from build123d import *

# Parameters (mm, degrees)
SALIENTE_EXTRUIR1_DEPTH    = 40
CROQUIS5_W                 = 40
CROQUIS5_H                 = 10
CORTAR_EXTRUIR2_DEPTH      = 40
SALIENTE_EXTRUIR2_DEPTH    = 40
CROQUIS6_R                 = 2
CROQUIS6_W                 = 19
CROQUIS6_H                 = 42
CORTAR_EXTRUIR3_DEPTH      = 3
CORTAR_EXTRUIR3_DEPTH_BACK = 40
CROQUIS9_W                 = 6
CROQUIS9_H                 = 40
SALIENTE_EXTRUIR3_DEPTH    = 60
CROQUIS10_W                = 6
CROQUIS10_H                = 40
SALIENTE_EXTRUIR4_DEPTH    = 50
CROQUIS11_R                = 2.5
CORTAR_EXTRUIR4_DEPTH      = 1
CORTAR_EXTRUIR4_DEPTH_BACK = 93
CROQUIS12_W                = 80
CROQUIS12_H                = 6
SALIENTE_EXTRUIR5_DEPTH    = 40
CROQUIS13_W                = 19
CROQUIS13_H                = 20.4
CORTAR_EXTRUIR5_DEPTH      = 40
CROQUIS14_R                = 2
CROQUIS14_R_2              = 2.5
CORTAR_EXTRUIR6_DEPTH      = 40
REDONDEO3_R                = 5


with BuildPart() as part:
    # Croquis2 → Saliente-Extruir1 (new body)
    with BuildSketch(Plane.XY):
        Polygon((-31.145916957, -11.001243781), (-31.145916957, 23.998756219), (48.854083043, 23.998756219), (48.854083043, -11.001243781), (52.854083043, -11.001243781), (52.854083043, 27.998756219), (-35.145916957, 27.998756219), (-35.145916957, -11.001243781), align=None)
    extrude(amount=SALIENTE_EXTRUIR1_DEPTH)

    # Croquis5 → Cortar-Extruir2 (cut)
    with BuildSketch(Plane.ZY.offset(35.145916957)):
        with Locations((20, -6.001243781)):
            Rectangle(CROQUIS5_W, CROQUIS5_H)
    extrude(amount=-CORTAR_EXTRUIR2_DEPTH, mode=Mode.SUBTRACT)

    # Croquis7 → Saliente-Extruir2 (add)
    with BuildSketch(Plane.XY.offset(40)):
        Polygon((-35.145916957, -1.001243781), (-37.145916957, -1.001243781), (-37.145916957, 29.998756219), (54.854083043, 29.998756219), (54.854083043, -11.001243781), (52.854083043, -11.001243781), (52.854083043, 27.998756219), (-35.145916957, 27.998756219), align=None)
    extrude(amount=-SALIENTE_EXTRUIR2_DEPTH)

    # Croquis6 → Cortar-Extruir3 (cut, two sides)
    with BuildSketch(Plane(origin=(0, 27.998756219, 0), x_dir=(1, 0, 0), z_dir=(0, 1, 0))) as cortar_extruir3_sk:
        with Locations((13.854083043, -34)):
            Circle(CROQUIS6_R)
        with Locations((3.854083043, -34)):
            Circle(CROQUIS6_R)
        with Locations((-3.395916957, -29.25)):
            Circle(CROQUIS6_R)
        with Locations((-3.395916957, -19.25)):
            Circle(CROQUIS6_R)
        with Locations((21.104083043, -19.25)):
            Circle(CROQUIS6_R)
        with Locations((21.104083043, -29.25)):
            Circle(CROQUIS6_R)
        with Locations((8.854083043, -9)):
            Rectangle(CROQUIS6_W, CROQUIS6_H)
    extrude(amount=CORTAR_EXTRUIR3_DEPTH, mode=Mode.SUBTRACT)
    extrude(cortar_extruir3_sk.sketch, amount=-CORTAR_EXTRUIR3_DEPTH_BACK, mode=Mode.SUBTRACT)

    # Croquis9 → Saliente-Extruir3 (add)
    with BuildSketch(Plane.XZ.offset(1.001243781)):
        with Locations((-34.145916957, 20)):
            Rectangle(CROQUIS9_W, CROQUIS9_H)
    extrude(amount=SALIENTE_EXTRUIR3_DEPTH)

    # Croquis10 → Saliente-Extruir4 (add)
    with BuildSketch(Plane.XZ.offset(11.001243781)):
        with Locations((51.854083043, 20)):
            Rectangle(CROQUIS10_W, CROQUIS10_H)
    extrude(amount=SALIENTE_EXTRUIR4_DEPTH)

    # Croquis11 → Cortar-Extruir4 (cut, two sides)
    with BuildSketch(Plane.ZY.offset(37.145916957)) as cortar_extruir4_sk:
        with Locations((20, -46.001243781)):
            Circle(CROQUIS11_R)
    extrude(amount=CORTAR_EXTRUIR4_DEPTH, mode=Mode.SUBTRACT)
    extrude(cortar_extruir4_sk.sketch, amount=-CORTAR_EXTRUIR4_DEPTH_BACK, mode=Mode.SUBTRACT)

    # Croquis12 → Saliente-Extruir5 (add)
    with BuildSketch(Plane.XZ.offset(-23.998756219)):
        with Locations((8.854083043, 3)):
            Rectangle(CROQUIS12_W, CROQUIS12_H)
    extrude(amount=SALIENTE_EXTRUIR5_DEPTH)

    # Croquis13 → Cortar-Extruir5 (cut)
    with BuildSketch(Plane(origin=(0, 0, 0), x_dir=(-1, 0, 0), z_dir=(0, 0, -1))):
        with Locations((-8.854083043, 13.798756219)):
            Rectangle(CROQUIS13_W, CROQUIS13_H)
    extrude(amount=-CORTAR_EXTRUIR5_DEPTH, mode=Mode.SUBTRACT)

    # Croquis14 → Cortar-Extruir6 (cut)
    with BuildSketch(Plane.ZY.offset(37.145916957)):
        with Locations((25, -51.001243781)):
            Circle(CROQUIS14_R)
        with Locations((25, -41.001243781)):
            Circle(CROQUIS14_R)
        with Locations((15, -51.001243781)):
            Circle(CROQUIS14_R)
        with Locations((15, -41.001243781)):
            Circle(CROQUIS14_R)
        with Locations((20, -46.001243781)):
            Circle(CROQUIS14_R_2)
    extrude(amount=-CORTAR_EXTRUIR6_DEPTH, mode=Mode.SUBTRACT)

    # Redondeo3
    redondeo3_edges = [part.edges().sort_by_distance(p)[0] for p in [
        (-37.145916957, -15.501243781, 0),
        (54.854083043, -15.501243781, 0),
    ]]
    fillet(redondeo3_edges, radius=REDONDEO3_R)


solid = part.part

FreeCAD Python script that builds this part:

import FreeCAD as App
import Part
import Sketcher

V = App.Vector


def edges_at(feature, points):
    """Names of the edges that pass closest to the given points."""
    edges = feature.Shape.Edges
    near = lambda p: min(range(len(edges)), key=lambda i: edges[i].distToShape(Part.Vertex(*p))[0])
    return sorted({f"Edge{near(p) + 1}" for p in points})

doc = App.newDocument("Part")
body = doc.addObject("PartDesign::Body", "Body")

# Sketch on XY plane
sketch1 = body.newObject("Sketcher::SketchObject", "Sketch")
sketch1.AttachmentSupport = (doc.getObject("XY_Plane"), [""])
sketch1.MapMode = "FlatFace"
sketch1.addGeometry(Part.LineSegment(V(-31.1, -11, 0), V(-31.1, 24, 0)), False)
sketch1.addGeometry(Part.LineSegment(V(-31.1, 24, 0), V(48.9, 24, 0)), False)
sketch1.addGeometry(Part.LineSegment(V(48.9, 24, 0), V(48.9, -11, 0)), False)
sketch1.addGeometry(Part.LineSegment(V(48.9, -11, 0), V(52.9, -11, 0)), False)
sketch1.addGeometry(Part.LineSegment(V(52.9, -11, 0), V(52.9, 28, 0)), False)
sketch1.addGeometry(Part.LineSegment(V(52.9, 28, 0), V(-35.1, 28, 0)), False)
sketch1.addGeometry(Part.LineSegment(V(-35.1, 28, 0), V(-35.1, -11, 0)), False)
sketch1.addGeometry(Part.LineSegment(V(-35.1, -11, 0), V(-31.1, -11, 0)), False)
sketch1.addConstraint(Sketcher.Constraint("Coincident", 0, 2, 1, 1))
sketch1.addConstraint(Sketcher.Constraint("Coincident", 1, 2, 2, 1))
sketch1.addConstraint(Sketcher.Constraint("Coincident", 2, 2, 3, 1))
sketch1.addConstraint(Sketcher.Constraint("Coincident", 3, 2, 4, 1))
sketch1.addConstraint(Sketcher.Constraint("Coincident", 4, 2, 5, 1))
sketch1.addConstraint(Sketcher.Constraint("Coincident", 5, 2, 6, 1))
sketch1.addConstraint(Sketcher.Constraint("Coincident", 6, 2, 7, 1))
sketch1.addConstraint(Sketcher.Constraint("Coincident", 7, 2, 0, 1))
sketch1.addConstraint(Sketcher.Constraint("Vertical", 0))
sketch1.addConstraint(Sketcher.Constraint("Horizontal", 1))
sketch1.addConstraint(Sketcher.Constraint("Vertical", 2))
sketch1.addConstraint(Sketcher.Constraint("Horizontal", 3))
sketch1.addConstraint(Sketcher.Constraint("Vertical", 4))
sketch1.addConstraint(Sketcher.Constraint("Horizontal", 5))
sketch1.addConstraint(Sketcher.Constraint("Vertical", 6))
sketch1.addConstraint(Sketcher.Constraint("Horizontal", 7))
sketch1.addConstraint(Sketcher.Constraint("Horizontal", 3, 2, 6, 2))
sketch1.addConstraint(Sketcher.Constraint("Equal", 3, 7))
sketch1.addConstraint(Sketcher.Constraint("DistanceX", 1, 1, 1, 2, 80.0))
sketch1.addConstraint(Sketcher.Constraint("DistanceX", 3, 1, 3, 2, 4.0))
sketch1.addConstraint(Sketcher.Constraint("DistanceY", 0, 1, 0, 2, 35.0))
sketch1.addConstraint(Sketcher.Constraint("DistanceY", 4, 1, 4, 2, 39.0))
sketch1.addConstraint(Sketcher.Constraint("DistanceX", 0, 2, -1, 1, 31.145917))
sketch1.addConstraint(Sketcher.Constraint("DistanceY", -1, 1, 0, 2, 23.998756))
pad1 = body.newObject("PartDesign::Pad", "Pad")
pad1.Profile = sketch1
pad1.Length = 40

# Sketch on YZ plane
sketch2 = body.newObject("Sketcher::SketchObject", "Sketch001")
sketch2.AttachmentSupport = (doc.getObject("YZ_Plane"), [""])
sketch2.MapMode = "FlatFace"
sketch2.AttachmentOffset = App.Placement(V(0, 0, -35.145917), App.Rotation())
sketch2.addGeometry(Part.LineSegment(V(-1, 0, 0), V(-11, 0, 0)), False)
sketch2.addGeometry(Part.LineSegment(V(-11, 0, 0), V(-11, 40, 0)), False)
sketch2.addGeometry(Part.LineSegment(V(-11, 40, 0), V(-1, 40, 0)), False)
sketch2.addGeometry(Part.LineSegment(V(-1, 40, 0), V(-1, 0, 0)), False)
sketch2.addConstraint(Sketcher.Constraint("Coincident", 0, 2, 1, 1))
sketch2.addConstraint(Sketcher.Constraint("Coincident", 1, 2, 2, 1))
sketch2.addConstraint(Sketcher.Constraint("Coincident", 2, 2, 3, 1))
sketch2.addConstraint(Sketcher.Constraint("Coincident", 3, 2, 0, 1))
sketch2.addConstraint(Sketcher.Constraint("Horizontal", 0))
sketch2.addConstraint(Sketcher.Constraint("Vertical", 1))
sketch2.addConstraint(Sketcher.Constraint("Horizontal", 2))
sketch2.addConstraint(Sketcher.Constraint("Vertical", 3))
sketch2.addConstraint(Sketcher.Constraint("PointOnObject", 0, 2, -1))
sketch2.addConstraint(Sketcher.Constraint("DistanceX", 0, 2, 0, 1, 10.0))
sketch2.addConstraint(Sketcher.Constraint("DistanceY", 1, 1, 1, 2, 40.0))
sketch2.addConstraint(Sketcher.Constraint("DistanceX", 0, 2, -1, 1, 11.001244))
pocket1 = body.newObject("PartDesign::Pocket", "Pocket")
pocket1.Profile = sketch2
pocket1.Length = 40
pocket1.Reversed = True

# Sketch on XY plane
sketch3 = body.newObject("Sketcher::SketchObject", "Sketch002")
sketch3.AttachmentSupport = (doc.getObject("XY_Plane"), [""])
sketch3.MapMode = "FlatFace"
sketch3.AttachmentOffset = App.Placement(V(0, 0, 40), App.Rotation())
sketch3.addGeometry(Part.LineSegment(V(-37.1, -1, 0), V(-35.1, -1, 0)), False)
sketch3.addGeometry(Part.LineSegment(V(-35.1, -1, 0), V(-35.1, 28, 0)), False)
sketch3.addGeometry(Part.LineSegment(V(-35.1, 28, 0), V(52.9, 28, 0)), False)
sketch3.addGeometry(Part.LineSegment(V(52.9, 28, 0), V(52.9, -11, 0)), False)
sketch3.addGeometry(Part.LineSegment(V(52.9, -11, 0), V(54.9, -11, 0)), False)
sketch3.addGeometry(Part.LineSegment(V(54.9, -11, 0), V(54.9, 30, 0)), False)
sketch3.addGeometry(Part.LineSegment(V(54.9, 30, 0), V(-37.1, 30, 0)), False)
sketch3.addGeometry(Part.LineSegment(V(-37.1, 30, 0), V(-37.1, -1, 0)), False)
sketch3.addConstraint(Sketcher.Constraint("Coincident", 0, 2, 1, 1))
sketch3.addConstraint(Sketcher.Constraint("Coincident", 1, 2, 2, 1))
sketch3.addConstraint(Sketcher.Constraint("Coincident", 2, 2, 3, 1))
sketch3.addConstraint(Sketcher.Constraint("Coincident", 3, 2, 4, 1))
sketch3.addConstraint(Sketcher.Constraint("Coincident", 4, 2, 5, 1))
sketch3.addConstraint(Sketcher.Constraint("Coincident", 5, 2, 6, 1))
sketch3.addConstraint(Sketcher.Constraint("Coincident", 6, 2, 7, 1))
sketch3.addConstraint(Sketcher.Constraint("Coincident", 7, 2, 0, 1))
sketch3.addConstraint(Sketcher.Constraint("Horizontal", 0))
sketch3.addConstraint(Sketcher.Constraint("Vertical", 1))
sketch3.addConstraint(Sketcher.Constraint("Horizontal", 2))
sketch3.addConstraint(Sketcher.Constraint("Vertical", 3))
sketch3.addConstraint(Sketcher.Constraint("Horizontal", 4))
sketch3.addConstraint(Sketcher.Constraint("Vertical", 5))
sketch3.addConstraint(Sketcher.Constraint("Horizontal", 6))
sketch3.addConstraint(Sketcher.Constraint("Vertical", 7))
sketch3.addConstraint(Sketcher.Constraint("Equal", 0, 4))
sketch3.addConstraint(Sketcher.Constraint("DistanceX", 0, 1, 0, 2, 2.0))
sketch3.addConstraint(Sketcher.Constraint("DistanceX", 2, 1, 2, 2, 88.0))
sketch3.addConstraint(Sketcher.Constraint("DistanceY", 1, 1, 1, 2, 29.0))
sketch3.addConstraint(Sketcher.Constraint("DistanceY", 3, 2, 3, 1, 39.0))
sketch3.addConstraint(Sketcher.Constraint("DistanceY", 5, 1, 5, 2, 41.0))
sketch3.addConstraint(Sketcher.Constraint("DistanceX", 0, 2, -1, 1, 35.145917))
sketch3.addConstraint(Sketcher.Constraint("DistanceY", 0, 2, -1, 1, 1.001244))
pad2 = body.newObject("PartDesign::Pad", "Pad001")
pad2.Profile = sketch3
pad2.Length = 40
pad2.Reversed = True

# Sketch on XZ plane
sketch4 = body.newObject("Sketcher::SketchObject", "Sketch003")
sketch4.AttachmentSupport = (doc.getObject("XZ_Plane"), [""])
sketch4.MapMode = "FlatFace"
sketch4.AttachmentOffset = App.Placement(V(0, 0, -27.998756), App.Rotation())
sketch4.addGeometry(Part.Circle(V(13.9, 34, 0), V(0, 0, 1), 2), False)
sketch4.addGeometry(Part.Circle(V(3.9, 34, 0), V(0, 0, 1), 2), False)
sketch4.addGeometry(Part.Circle(V(-3.4, 29.2, 0), V(0, 0, 1), 2), False)
sketch4.addGeometry(Part.Circle(V(-3.4, 19.2, 0), V(0, 0, 1), 2), False)
sketch4.addGeometry(Part.Circle(V(21.1, 19.2, 0), V(0, 0, 1), 2), False)
sketch4.addGeometry(Part.Circle(V(21.1, 29.2, 0), V(0, 0, 1), 2), False)
sketch4.addGeometry(Part.LineSegment(V(-0.6, -12, 0), V(-0.6, 30, 0)), False)
sketch4.addGeometry(Part.LineSegment(V(-0.6, 30, 0), V(18.4, 30, 0)), False)
sketch4.addGeometry(Part.LineSegment(V(18.4, 30, 0), V(18.4, -12, 0)), False)
sketch4.addGeometry(Part.LineSegment(V(18.4, -12, 0), V(-0.6, -12, 0)), False)
sketch4.addConstraint(Sketcher.Constraint("Coincident", 6, 2, 7, 1))
sketch4.addConstraint(Sketcher.Constraint("Coincident", 7, 2, 8, 1))
sketch4.addConstraint(Sketcher.Constraint("Coincident", 8, 2, 9, 1))
sketch4.addConstraint(Sketcher.Constraint("Coincident", 9, 2, 6, 1))
sketch4.addConstraint(Sketcher.Constraint("Vertical", 6))
sketch4.addConstraint(Sketcher.Constraint("Horizontal", 7))
sketch4.addConstraint(Sketcher.Constraint("Vertical", 8))
sketch4.addConstraint(Sketcher.Constraint("Horizontal", 9))
sketch4.addConstraint(Sketcher.Constraint("Equal", 0, 1))
sketch4.addConstraint(Sketcher.Constraint("Equal", 1, 2))
sketch4.addConstraint(Sketcher.Constraint("Equal", 2, 3))
sketch4.addConstraint(Sketcher.Constraint("Equal", 3, 4))
sketch4.addConstraint(Sketcher.Constraint("Equal", 4, 5))
sketch4.addConstraint(Sketcher.Constraint("Horizontal", 0, 3, 1, 3))
sketch4.addConstraint(Sketcher.Constraint("Horizontal", 3, 3, 4, 3))
sketch4.addConstraint(Sketcher.Constraint("Horizontal", 2, 3, 5, 3))
sketch4.addConstraint(Sketcher.Constraint("Vertical", 2, 3, 3, 3))
sketch4.addConstraint(Sketcher.Constraint("Vertical", 4, 3, 5, 3))
sketch4.addConstraint(Sketcher.Constraint("Diameter", 0, 4.0))
sketch4.addConstraint(Sketcher.Constraint("DistanceX", 7, 1, 7, 2, 19.0))
sketch4.addConstraint(Sketcher.Constraint("DistanceY", 6, 1, 6, 2, 42.0))
sketch4.addConstraint(Sketcher.Constraint("DistanceY", -1, 1, 0, 3, 34.0))
sketch4.addConstraint(Sketcher.Constraint("DistanceY", -1, 1, 6, 2, 30.0))
sketch4.addConstraint(Sketcher.Constraint("DistanceX", 1, 3, 0, 3, 10.0))
sketch4.addConstraint(Sketcher.Constraint("DistanceY", 3, 3, 2, 3, 10.0))
sketch4.addConstraint(Sketcher.Constraint("DistanceX", 3, 3, 4, 3, 24.5))
sketch4.addConstraint(Sketcher.Constraint("DistanceX", 6, 2, 1, 3, 4.5))
sketch4.addConstraint(Sketcher.Constraint("DistanceY", -1, 1, 2, 3, 29.25))
sketch4.addConstraint(Sketcher.Constraint("DistanceX", 2, 3, 1, 3, 7.25))
sketch4.addConstraint(Sketcher.Constraint("DistanceX", -1, 1, 0, 3, 13.854083))
pocket2 = body.newObject("PartDesign::Pocket", "Pocket001")
pocket2.Profile = sketch4
pocket2.Type = "ThroughAll"
pocket2.Midplane = True

# Sketch on XZ plane
sketch5 = body.newObject("Sketcher::SketchObject", "Sketch004")
sketch5.AttachmentSupport = (doc.getObject("XZ_Plane"), [""])
sketch5.MapMode = "FlatFace"
sketch5.AttachmentOffset = App.Placement(V(0, 0, 1.001244), App.Rotation())
sketch5.addGeometry(Part.LineSegment(V(-37, 40, 0), V(-37, 0, 0)), False)
sketch5.addGeometry(Part.LineSegment(V(-37, 0, 0), V(-31, 0, 0)), False)
sketch5.addGeometry(Part.LineSegment(V(-31, 0, 0), V(-31, 40, 0)), False)
sketch5.addGeometry(Part.LineSegment(V(-31, 40, 0), V(-37, 40, 0)), False)
sketch5.addConstraint(Sketcher.Constraint("Coincident", 0, 2, 1, 1))
sketch5.addConstraint(Sketcher.Constraint("Coincident", 1, 2, 2, 1))
sketch5.addConstraint(Sketcher.Constraint("Coincident", 2, 2, 3, 1))
sketch5.addConstraint(Sketcher.Constraint("Coincident", 3, 2, 0, 1))
sketch5.addConstraint(Sketcher.Constraint("Vertical", 0))
sketch5.addConstraint(Sketcher.Constraint("Horizontal", 1))
sketch5.addConstraint(Sketcher.Constraint("Vertical", 2))
sketch5.addConstraint(Sketcher.Constraint("Horizontal", 3))
sketch5.addConstraint(Sketcher.Constraint("PointOnObject", 0, 2, -1))
sketch5.addConstraint(Sketcher.Constraint("DistanceX", 1, 1, 1, 2, 6.0))
sketch5.addConstraint(Sketcher.Constraint("DistanceY", 0, 2, 0, 1, 40.0))
sketch5.addConstraint(Sketcher.Constraint("DistanceX", 0, 2, -1, 1, 37.145917))
pad3 = body.newObject("PartDesign::Pad", "Pad002")
pad3.Profile = sketch5
pad3.Length = 60

# Sketch on XZ plane
sketch6 = body.newObject("Sketcher::SketchObject", "Sketch005")
sketch6.AttachmentSupport = (doc.getObject("XZ_Plane"), [""])
sketch6.MapMode = "FlatFace"
sketch6.AttachmentOffset = App.Placement(V(0, 0, 11.001244), App.Rotation())
sketch6.addGeometry(Part.LineSegment(V(49, 40, 0), V(49, 0, 0)), False)
sketch6.addGeometry(Part.LineSegment(V(49, 0, 0), V(55, 0, 0)), False)
sketch6.addGeometry(Part.LineSegment(V(55, 0, 0), V(55, 40, 0)), False)
sketch6.addGeometry(Part.LineSegment(V(55, 40, 0), V(49, 40, 0)), False)
sketch6.addConstraint(Sketcher.Constraint("Coincident", 0, 2, 1, 1))
sketch6.addConstraint(Sketcher.Constraint("Coincident", 1, 2, 2, 1))
sketch6.addConstraint(Sketcher.Constraint("Coincident", 2, 2, 3, 1))
sketch6.addConstraint(Sketcher.Constraint("Coincident", 3, 2, 0, 1))
sketch6.addConstraint(Sketcher.Constraint("Vertical", 0))
sketch6.addConstraint(Sketcher.Constraint("Horizontal", 1))
sketch6.addConstraint(Sketcher.Constraint("Vertical", 2))
sketch6.addConstraint(Sketcher.Constraint("Horizontal", 3))
sketch6.addConstraint(Sketcher.Constraint("PointOnObject", 0, 2, -1))
sketch6.addConstraint(Sketcher.Constraint("DistanceX", 1, 1, 1, 2, 6.0))
sketch6.addConstraint(Sketcher.Constraint("DistanceY", 0, 2, 0, 1, 40.0))
sketch6.addConstraint(Sketcher.Constraint("DistanceX", -1, 1, 0, 2, 48.854083))
pad4 = body.newObject("PartDesign::Pad", "Pad003")
pad4.Profile = sketch6
pad4.Length = 50

# Sketch on YZ plane
sketch7 = body.newObject("Sketcher::SketchObject", "Sketch006")
sketch7.AttachmentSupport = (doc.getObject("YZ_Plane"), [""])
sketch7.MapMode = "FlatFace"
sketch7.AttachmentOffset = App.Placement(V(0, 0, -37.145917), App.Rotation())
sketch7.addGeometry(Part.Circle(V(-46, 20, 0), V(0, 0, 1), 2.5), False)
sketch7.addConstraint(Sketcher.Constraint("Diameter", 0, 5.0))
sketch7.addConstraint(Sketcher.Constraint("DistanceY", -1, 1, 0, 3, 20.0))
sketch7.addConstraint(Sketcher.Constraint("DistanceX", 0, 3, -1, 1, 46.001244))
pocket3 = body.newObject("PartDesign::Pocket", "Pocket002")
pocket3.Profile = sketch7
pocket3.Type = "ThroughAll"
pocket3.Midplane = True

# Sketch on XZ plane
sketch8 = body.newObject("Sketcher::SketchObject", "Sketch007")
sketch8.AttachmentSupport = (doc.getObject("XZ_Plane"), [""])
sketch8.MapMode = "FlatFace"
sketch8.AttachmentOffset = App.Placement(V(0, 0, -23.998756), App.Rotation())
sketch8.addGeometry(Part.LineSegment(V(-31, 6, 0), V(-31, 0, 0)), False)
sketch8.addGeometry(Part.LineSegment(V(-31, 0, 0), V(49, 0, 0)), False)
sketch8.addGeometry(Part.LineSegment(V(49, 0, 0), V(49, 6, 0)), False)
sketch8.addGeometry(Part.LineSegment(V(49, 6, 0), V(-31, 6, 0)), False)
sketch8.addConstraint(Sketcher.Constraint("Coincident", 0, 2, 1, 1))
sketch8.addConstraint(Sketcher.Constraint("Coincident", 1, 2, 2, 1))
sketch8.addConstraint(Sketcher.Constraint("Coincident", 2, 2, 3, 1))
sketch8.addConstraint(Sketcher.Constraint("Coincident", 3, 2, 0, 1))
sketch8.addConstraint(Sketcher.Constraint("Vertical", 0))
sketch8.addConstraint(Sketcher.Constraint("Horizontal", 1))
sketch8.addConstraint(Sketcher.Constraint("Vertical", 2))
sketch8.addConstraint(Sketcher.Constraint("Horizontal", 3))
sketch8.addConstraint(Sketcher.Constraint("PointOnObject", 0, 2, -1))
sketch8.addConstraint(Sketcher.Constraint("DistanceX", 1, 1, 1, 2, 80.0))
sketch8.addConstraint(Sketcher.Constraint("DistanceY", 0, 2, 0, 1, 6.0))
sketch8.addConstraint(Sketcher.Constraint("DistanceX", 0, 2, -1, 1, 31.145917))
pad5 = body.newObject("PartDesign::Pad", "Pad004")
pad5.Profile = sketch8
pad5.Length = 40

# Sketch on XY plane
sketch9 = body.newObject("Sketcher::SketchObject", "Sketch008")
sketch9.AttachmentSupport = (doc.getObject("XY_Plane"), [""])
sketch9.MapMode = "FlatFace"
sketch9.addGeometry(Part.LineSegment(V(18, 24, 0), V(18, 4, 0)), False)
sketch9.addGeometry(Part.LineSegment(V(18, 4, 0), V(-1, 4, 0)), False)
sketch9.addGeometry(Part.LineSegment(V(-1, 4, 0), V(-1, 24, 0)), False)
sketch9.addGeometry(Part.LineSegment(V(-1, 24, 0), V(18, 24, 0)), False)
sketch9.addConstraint(Sketcher.Constraint("Coincident", 0, 2, 1, 1))
sketch9.addConstraint(Sketcher.Constraint("Coincident", 1, 2, 2, 1))
sketch9.addConstraint(Sketcher.Constraint("Coincident", 2, 2, 3, 1))
sketch9.addConstraint(Sketcher.Constraint("Coincident", 3, 2, 0, 1))
sketch9.addConstraint(Sketcher.Constraint("Vertical", 0))
sketch9.addConstraint(Sketcher.Constraint("Horizontal", 1))
sketch9.addConstraint(Sketcher.Constraint("Vertical", 2))
sketch9.addConstraint(Sketcher.Constraint("Horizontal", 3))
sketch9.addConstraint(Sketcher.Constraint("DistanceX", 1, 2, 1, 1, 19.0))
sketch9.addConstraint(Sketcher.Constraint("DistanceY", 0, 2, 0, 1, 20.4))
sketch9.addConstraint(Sketcher.Constraint("DistanceX", -1, 1, 0, 2, 18.354083))
sketch9.addConstraint(Sketcher.Constraint("DistanceY", -1, 1, 0, 2, 3.598756))
pocket4 = body.newObject("PartDesign::Pocket", "Pocket003")
pocket4.Profile = sketch9
pocket4.Length = 40
pocket4.Reversed = True

# Sketch on YZ plane
sketch10 = body.newObject("Sketcher::SketchObject", "Sketch009")
sketch10.AttachmentSupport = (doc.getObject("YZ_Plane"), [""])
sketch10.MapMode = "FlatFace"
sketch10.AttachmentOffset = App.Placement(V(0, 0, -37.145917), App.Rotation())
sketch10.addGeometry(Part.Circle(V(-51, 25, 0), V(0, 0, 1), 2), False)
sketch10.addGeometry(Part.Circle(V(-41, 25, 0), V(0, 0, 1), 2), False)
sketch10.addGeometry(Part.Circle(V(-51, 15, 0), V(0, 0, 1), 2), False)
sketch10.addGeometry(Part.Circle(V(-41, 15, 0), V(0, 0, 1), 2), False)
sketch10.addGeometry(Part.Circle(V(-46, 20, 0), V(0, 0, 1), 2.5), False)
sketch10.addConstraint(Sketcher.Constraint("Equal", 0, 1))
sketch10.addConstraint(Sketcher.Constraint("Equal", 1, 2))
sketch10.addConstraint(Sketcher.Constraint("Equal", 2, 3))
sketch10.addConstraint(Sketcher.Constraint("Horizontal", 0, 3, 1, 3))
sketch10.addConstraint(Sketcher.Constraint("Horizontal", 2, 3, 3, 3))
sketch10.addConstraint(Sketcher.Constraint("Vertical", 0, 3, 2, 3))
sketch10.addConstraint(Sketcher.Constraint("Vertical", 1, 3, 3, 3))
sketch10.addConstraint(Sketcher.Constraint("Diameter", 0, 4.0))
sketch10.addConstraint(Sketcher.Constraint("Diameter", 4, 5.0))
sketch10.addConstraint(Sketcher.Constraint("DistanceY", -1, 1, 0, 3, 25.0))
sketch10.addConstraint(Sketcher.Constraint("DistanceY", -1, 1, 2, 3, 15.0))
sketch10.addConstraint(Sketcher.Constraint("DistanceY", -1, 1, 4, 3, 20.0))
sketch10.addConstraint(Sketcher.Constraint("DistanceX", 0, 3, 1, 3, 10.0))
sketch10.addConstraint(Sketcher.Constraint("DistanceX", 0, 3, 4, 3, 5.0))
sketch10.addConstraint(Sketcher.Constraint("DistanceX", 0, 3, -1, 1, 51.001244))
pocket5 = body.newObject("PartDesign::Pocket", "Pocket004")
pocket5.Profile = sketch10
pocket5.Length = 40
pocket5.Reversed = True
doc.recompute()

fillet = body.newObject("PartDesign::Fillet", "Fillet")
fillet.Base = (pocket5, edges_at(pocket5, [(-37.146, -15.501, 0), (54.854, -15.501, 0)]))
fillet.Radius = 5

doc.recompute()
